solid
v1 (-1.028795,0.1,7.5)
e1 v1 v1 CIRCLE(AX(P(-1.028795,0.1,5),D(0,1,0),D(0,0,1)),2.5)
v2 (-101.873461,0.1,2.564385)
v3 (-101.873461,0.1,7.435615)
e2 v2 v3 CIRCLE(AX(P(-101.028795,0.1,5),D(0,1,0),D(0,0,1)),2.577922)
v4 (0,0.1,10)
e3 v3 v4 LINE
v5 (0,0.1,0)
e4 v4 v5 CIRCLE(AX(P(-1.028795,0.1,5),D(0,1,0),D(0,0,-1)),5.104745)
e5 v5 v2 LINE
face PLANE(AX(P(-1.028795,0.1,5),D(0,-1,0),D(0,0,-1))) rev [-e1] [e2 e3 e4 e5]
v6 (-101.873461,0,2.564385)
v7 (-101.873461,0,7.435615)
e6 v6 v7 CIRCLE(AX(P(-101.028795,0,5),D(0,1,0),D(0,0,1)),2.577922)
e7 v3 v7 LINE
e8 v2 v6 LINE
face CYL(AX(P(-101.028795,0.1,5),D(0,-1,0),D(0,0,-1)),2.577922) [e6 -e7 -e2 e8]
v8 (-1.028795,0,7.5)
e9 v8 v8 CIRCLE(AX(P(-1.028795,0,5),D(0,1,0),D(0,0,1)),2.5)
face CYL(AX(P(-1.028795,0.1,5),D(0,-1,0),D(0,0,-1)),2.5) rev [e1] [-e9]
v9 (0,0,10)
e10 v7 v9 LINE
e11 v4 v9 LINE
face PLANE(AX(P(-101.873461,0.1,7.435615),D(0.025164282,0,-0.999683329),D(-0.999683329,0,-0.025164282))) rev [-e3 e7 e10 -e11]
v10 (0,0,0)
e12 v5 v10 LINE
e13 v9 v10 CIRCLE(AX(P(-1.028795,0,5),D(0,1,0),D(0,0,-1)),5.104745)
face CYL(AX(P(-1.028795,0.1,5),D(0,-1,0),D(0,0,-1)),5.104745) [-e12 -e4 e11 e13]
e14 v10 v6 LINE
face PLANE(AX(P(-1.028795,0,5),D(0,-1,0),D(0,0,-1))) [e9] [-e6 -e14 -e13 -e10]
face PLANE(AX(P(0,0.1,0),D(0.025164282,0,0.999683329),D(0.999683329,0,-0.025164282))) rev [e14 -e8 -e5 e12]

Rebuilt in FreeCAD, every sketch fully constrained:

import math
import FreeCAD as App
import Part
import Sketcher

V = App.Vector
Q = App.Units.Quantity

doc = App.newDocument("Part")
body = doc.addObject("PartDesign::Body", "Body")

# Sketch on XZ plane
sketch1 = doc.addObject("Sketcher::SketchObject", "Sketch")
body.addObject(sketch1)
sketch1.AttachmentSupport = (doc.XZ_Plane, [""])
sketch1.MapMode = "FlatFace"
sketch1.addGeometry([
    Part.LineSegment(V(0, 0, 0), V(-101.9, 2.6, 0)),  # 0
    Part.ArcOfCircle(Part.Circle(V(-101, 5, 0), V(0, 0, 1), 2.6), math.radians(109), math.radians(251)),  # 1
    Part.LineSegment(V(-101.9, 7.4, 0), V(0, 10, 0)),  # 2
    Part.ArcOfCircle(Part.Circle(V(-1, 5, 0), V(0, 0, 1), 5.1), math.radians(-78), math.radians(78)),  # 3
    Part.Circle(V(-1, 5, 0), V(0, 0, 1), 2.5),  # 4
], False)
sketch1.addConstraint([
    Sketcher.Constraint("Coincident", 0, 2, 1, 2),
    Sketcher.Constraint("Coincident", 1, 1, 2, 1),
    Sketcher.Constraint("Coincident", 2, 2, 3, 2),
    Sketcher.Constraint("Coincident", 3, 1, 0, 1),
    Sketcher.Constraint("Coincident", 3, 1, -1, 1),
    Sketcher.Constraint("Coincident", 4, 3, 3, 3),
    Sketcher.Constraint("PointOnObject", 2, 2, -2),
    Sketcher.Constraint("Horizontal", 1, 3, 3, 3),
    Sketcher.Constraint("Vertical", 0, 2, 1, 1),
    Sketcher.Constraint("Diameter", 4, Q("5 mm")),
    Sketcher.Constraint("DistanceY", -1, 1, 1, 3, Q("5 mm")),
    Sketcher.Constraint("DistanceX", 1, 3, 3, 3, Q("100 mm")),
    Sketcher.Constraint("Radius", 1, Q("2.577922 mm")),
    Sketcher.Constraint("Radius", 3, Q("5.104745 mm")),
    Sketcher.Constraint("Distance", 0, Q("101.905732 mm")),
])
pad1 = doc.addObject("PartDesign::Pad", "Pad")
body.addObject(pad1)
pad1.Profile = sketch1
pad1.Length = 0.1
pad1.Reversed = True

doc.recompute()
